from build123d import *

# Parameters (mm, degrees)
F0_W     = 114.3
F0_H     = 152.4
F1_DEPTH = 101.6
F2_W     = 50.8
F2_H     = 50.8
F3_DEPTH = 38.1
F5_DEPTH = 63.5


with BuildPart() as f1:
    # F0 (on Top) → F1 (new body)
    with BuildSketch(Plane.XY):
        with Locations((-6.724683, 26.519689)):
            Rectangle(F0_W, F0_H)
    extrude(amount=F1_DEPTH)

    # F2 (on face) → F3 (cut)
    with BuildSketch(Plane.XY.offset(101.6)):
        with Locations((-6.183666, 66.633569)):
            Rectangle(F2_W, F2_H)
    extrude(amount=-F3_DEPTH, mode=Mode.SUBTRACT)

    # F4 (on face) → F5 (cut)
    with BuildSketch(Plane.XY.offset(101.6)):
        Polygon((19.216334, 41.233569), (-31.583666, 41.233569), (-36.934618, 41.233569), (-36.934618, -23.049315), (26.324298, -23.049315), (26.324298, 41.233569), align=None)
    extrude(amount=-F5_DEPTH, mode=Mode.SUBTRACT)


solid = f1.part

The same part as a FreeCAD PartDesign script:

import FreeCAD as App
import Part
import Sketcher
from FreeCAD import Vector
Q = App.Units.Quantity


def add_polygon(sketch, points):
    """Adds a closed chain of lines whose ends are joined by coincident constraints."""
    first, n = sketch.GeometryCount, len(points)
    for a, b in zip(points, points[1:] + points[:1]):
        sketch.addGeometry(Part.LineSegment(App.Vector(*a, 0), App.Vector(*b, 0)), False)
    for i in range(n):
        sketch.addConstraint(Sketcher.Constraint("Coincident", first + i, 2, first + (i + 1) % n, 1))

doc = App.newDocument("Part")
body = doc.addObject("PartDesign::Body", "Body")

# Sketch on XY plane
sketch1 = body.newObject("Sketcher::SketchObject", "Sketch")
sketch1.AttachmentSupport = (doc.getObject("XY_Plane"), [""])
sketch1.MapMode = "FlatFace"
add_polygon(sketch1, [(-63.874683, 102.719689), (-63.874683, -49.680311), (50.425317, -49.680311), (50.425317, 102.719689)])  # lines 0-3
sketch1.addConstraint([
    Sketcher.Constraint("Vertical", 0),
    Sketcher.Constraint("Horizontal", 1),
    Sketcher.Constraint("Vertical", 2),
    Sketcher.Constraint("Horizontal", 3),
    Sketcher.Constraint("DistanceY", 0, 2, 0, 1, Q("6 in")),
    Sketcher.Constraint("DistanceX", 1, 1, 1, 2, Q("4.5 in")),
    Sketcher.Constraint("DistanceY", 0, 2, -1, 1, 49.680311),
    Sketcher.Constraint("DistanceX", 0, 2, -1, 1, 63.874683),
])
pad1 = body.newObject("PartDesign::Pad", "Pad")
pad1.Profile = sketch1
pad1.Length = Q("4 in")

# Sketch on XY plane
sketch2 = body.newObject("Sketcher::SketchObject", "Sketch001")
sketch2.AttachmentSupport = (doc.getObject("XY_Plane"), [""])
sketch2.MapMode = "FlatFace"
sketch2.AttachmentOffset = App.Placement(Vector(0, 0, 4 * 25.4), App.Rotation())
add_polygon(sketch2, [(-31.583666, 92.033569), (-31.583666, 41.233569), (19.216334, 41.233569), (19.216334, 92.033569)])  # lines 0-3
sketch2.addConstraint([
    Sketcher.Constraint("Vertical", 0),
    Sketcher.Constraint("Horizontal", 1),
    Sketcher.Constraint("Vertical", 2),
    Sketcher.Constraint("Horizontal", 3),
    Sketcher.Constraint("Equal", 3, 0),
    Sketcher.Constraint("DistanceX", 1, 1, 1, 2, Q("2 in")),
    Sketcher.Constraint("DistanceY", -1, 1, 0, 2, 41.233569),
    Sketcher.Constraint("DistanceX", 0, 2, -1, 1, 31.583666),
])
pocket1 = body.newObject("PartDesign::Pocket", "Pocket")
pocket1.Profile = sketch2
pocket1.Length = Q("1.5 in")

# Sketch on XY plane
sketch3 = body.newObject("Sketcher::SketchObject", "Sketch002")
sketch3.AttachmentSupport = (doc.getObject("XY_Plane"), [""])
sketch3.MapMode = "FlatFace"
sketch3.AttachmentOffset = App.Placement(Vector(0, 0, 4 * 25.4), App.Rotation())
add_polygon(sketch3, [(-36.934618, 41.233569), (-36.934618, -23.049315), (26.324298, -23.049315), (26.324298, 41.233569)])  # lines 0-3
sketch3.addConstraint([
    Sketcher.Constraint("Vertical", 0),
    Sketcher.Constraint("Horizontal", 1),
    Sketcher.Constraint("Vertical", 2),
    Sketcher.Constraint("Horizontal", 3),
    Sketcher.Constraint("DistanceX", 1, 1, 1, 2, 63.258916),
    Sketcher.Constraint("DistanceY", 0, 2, 0, 1, 64.282884),
    Sketcher.Constraint("DistanceY", -1, 1, 2, 2, 41.233569),
    Sketcher.Constraint("DistanceX", 0, 2, -1, 1, 36.934618),
])
pocket2 = body.newObject("PartDesign::Pocket", "Pocket001")
pocket2.Profile = sketch3
pocket2.Length = Q("2.5 in")

doc.recompute()
